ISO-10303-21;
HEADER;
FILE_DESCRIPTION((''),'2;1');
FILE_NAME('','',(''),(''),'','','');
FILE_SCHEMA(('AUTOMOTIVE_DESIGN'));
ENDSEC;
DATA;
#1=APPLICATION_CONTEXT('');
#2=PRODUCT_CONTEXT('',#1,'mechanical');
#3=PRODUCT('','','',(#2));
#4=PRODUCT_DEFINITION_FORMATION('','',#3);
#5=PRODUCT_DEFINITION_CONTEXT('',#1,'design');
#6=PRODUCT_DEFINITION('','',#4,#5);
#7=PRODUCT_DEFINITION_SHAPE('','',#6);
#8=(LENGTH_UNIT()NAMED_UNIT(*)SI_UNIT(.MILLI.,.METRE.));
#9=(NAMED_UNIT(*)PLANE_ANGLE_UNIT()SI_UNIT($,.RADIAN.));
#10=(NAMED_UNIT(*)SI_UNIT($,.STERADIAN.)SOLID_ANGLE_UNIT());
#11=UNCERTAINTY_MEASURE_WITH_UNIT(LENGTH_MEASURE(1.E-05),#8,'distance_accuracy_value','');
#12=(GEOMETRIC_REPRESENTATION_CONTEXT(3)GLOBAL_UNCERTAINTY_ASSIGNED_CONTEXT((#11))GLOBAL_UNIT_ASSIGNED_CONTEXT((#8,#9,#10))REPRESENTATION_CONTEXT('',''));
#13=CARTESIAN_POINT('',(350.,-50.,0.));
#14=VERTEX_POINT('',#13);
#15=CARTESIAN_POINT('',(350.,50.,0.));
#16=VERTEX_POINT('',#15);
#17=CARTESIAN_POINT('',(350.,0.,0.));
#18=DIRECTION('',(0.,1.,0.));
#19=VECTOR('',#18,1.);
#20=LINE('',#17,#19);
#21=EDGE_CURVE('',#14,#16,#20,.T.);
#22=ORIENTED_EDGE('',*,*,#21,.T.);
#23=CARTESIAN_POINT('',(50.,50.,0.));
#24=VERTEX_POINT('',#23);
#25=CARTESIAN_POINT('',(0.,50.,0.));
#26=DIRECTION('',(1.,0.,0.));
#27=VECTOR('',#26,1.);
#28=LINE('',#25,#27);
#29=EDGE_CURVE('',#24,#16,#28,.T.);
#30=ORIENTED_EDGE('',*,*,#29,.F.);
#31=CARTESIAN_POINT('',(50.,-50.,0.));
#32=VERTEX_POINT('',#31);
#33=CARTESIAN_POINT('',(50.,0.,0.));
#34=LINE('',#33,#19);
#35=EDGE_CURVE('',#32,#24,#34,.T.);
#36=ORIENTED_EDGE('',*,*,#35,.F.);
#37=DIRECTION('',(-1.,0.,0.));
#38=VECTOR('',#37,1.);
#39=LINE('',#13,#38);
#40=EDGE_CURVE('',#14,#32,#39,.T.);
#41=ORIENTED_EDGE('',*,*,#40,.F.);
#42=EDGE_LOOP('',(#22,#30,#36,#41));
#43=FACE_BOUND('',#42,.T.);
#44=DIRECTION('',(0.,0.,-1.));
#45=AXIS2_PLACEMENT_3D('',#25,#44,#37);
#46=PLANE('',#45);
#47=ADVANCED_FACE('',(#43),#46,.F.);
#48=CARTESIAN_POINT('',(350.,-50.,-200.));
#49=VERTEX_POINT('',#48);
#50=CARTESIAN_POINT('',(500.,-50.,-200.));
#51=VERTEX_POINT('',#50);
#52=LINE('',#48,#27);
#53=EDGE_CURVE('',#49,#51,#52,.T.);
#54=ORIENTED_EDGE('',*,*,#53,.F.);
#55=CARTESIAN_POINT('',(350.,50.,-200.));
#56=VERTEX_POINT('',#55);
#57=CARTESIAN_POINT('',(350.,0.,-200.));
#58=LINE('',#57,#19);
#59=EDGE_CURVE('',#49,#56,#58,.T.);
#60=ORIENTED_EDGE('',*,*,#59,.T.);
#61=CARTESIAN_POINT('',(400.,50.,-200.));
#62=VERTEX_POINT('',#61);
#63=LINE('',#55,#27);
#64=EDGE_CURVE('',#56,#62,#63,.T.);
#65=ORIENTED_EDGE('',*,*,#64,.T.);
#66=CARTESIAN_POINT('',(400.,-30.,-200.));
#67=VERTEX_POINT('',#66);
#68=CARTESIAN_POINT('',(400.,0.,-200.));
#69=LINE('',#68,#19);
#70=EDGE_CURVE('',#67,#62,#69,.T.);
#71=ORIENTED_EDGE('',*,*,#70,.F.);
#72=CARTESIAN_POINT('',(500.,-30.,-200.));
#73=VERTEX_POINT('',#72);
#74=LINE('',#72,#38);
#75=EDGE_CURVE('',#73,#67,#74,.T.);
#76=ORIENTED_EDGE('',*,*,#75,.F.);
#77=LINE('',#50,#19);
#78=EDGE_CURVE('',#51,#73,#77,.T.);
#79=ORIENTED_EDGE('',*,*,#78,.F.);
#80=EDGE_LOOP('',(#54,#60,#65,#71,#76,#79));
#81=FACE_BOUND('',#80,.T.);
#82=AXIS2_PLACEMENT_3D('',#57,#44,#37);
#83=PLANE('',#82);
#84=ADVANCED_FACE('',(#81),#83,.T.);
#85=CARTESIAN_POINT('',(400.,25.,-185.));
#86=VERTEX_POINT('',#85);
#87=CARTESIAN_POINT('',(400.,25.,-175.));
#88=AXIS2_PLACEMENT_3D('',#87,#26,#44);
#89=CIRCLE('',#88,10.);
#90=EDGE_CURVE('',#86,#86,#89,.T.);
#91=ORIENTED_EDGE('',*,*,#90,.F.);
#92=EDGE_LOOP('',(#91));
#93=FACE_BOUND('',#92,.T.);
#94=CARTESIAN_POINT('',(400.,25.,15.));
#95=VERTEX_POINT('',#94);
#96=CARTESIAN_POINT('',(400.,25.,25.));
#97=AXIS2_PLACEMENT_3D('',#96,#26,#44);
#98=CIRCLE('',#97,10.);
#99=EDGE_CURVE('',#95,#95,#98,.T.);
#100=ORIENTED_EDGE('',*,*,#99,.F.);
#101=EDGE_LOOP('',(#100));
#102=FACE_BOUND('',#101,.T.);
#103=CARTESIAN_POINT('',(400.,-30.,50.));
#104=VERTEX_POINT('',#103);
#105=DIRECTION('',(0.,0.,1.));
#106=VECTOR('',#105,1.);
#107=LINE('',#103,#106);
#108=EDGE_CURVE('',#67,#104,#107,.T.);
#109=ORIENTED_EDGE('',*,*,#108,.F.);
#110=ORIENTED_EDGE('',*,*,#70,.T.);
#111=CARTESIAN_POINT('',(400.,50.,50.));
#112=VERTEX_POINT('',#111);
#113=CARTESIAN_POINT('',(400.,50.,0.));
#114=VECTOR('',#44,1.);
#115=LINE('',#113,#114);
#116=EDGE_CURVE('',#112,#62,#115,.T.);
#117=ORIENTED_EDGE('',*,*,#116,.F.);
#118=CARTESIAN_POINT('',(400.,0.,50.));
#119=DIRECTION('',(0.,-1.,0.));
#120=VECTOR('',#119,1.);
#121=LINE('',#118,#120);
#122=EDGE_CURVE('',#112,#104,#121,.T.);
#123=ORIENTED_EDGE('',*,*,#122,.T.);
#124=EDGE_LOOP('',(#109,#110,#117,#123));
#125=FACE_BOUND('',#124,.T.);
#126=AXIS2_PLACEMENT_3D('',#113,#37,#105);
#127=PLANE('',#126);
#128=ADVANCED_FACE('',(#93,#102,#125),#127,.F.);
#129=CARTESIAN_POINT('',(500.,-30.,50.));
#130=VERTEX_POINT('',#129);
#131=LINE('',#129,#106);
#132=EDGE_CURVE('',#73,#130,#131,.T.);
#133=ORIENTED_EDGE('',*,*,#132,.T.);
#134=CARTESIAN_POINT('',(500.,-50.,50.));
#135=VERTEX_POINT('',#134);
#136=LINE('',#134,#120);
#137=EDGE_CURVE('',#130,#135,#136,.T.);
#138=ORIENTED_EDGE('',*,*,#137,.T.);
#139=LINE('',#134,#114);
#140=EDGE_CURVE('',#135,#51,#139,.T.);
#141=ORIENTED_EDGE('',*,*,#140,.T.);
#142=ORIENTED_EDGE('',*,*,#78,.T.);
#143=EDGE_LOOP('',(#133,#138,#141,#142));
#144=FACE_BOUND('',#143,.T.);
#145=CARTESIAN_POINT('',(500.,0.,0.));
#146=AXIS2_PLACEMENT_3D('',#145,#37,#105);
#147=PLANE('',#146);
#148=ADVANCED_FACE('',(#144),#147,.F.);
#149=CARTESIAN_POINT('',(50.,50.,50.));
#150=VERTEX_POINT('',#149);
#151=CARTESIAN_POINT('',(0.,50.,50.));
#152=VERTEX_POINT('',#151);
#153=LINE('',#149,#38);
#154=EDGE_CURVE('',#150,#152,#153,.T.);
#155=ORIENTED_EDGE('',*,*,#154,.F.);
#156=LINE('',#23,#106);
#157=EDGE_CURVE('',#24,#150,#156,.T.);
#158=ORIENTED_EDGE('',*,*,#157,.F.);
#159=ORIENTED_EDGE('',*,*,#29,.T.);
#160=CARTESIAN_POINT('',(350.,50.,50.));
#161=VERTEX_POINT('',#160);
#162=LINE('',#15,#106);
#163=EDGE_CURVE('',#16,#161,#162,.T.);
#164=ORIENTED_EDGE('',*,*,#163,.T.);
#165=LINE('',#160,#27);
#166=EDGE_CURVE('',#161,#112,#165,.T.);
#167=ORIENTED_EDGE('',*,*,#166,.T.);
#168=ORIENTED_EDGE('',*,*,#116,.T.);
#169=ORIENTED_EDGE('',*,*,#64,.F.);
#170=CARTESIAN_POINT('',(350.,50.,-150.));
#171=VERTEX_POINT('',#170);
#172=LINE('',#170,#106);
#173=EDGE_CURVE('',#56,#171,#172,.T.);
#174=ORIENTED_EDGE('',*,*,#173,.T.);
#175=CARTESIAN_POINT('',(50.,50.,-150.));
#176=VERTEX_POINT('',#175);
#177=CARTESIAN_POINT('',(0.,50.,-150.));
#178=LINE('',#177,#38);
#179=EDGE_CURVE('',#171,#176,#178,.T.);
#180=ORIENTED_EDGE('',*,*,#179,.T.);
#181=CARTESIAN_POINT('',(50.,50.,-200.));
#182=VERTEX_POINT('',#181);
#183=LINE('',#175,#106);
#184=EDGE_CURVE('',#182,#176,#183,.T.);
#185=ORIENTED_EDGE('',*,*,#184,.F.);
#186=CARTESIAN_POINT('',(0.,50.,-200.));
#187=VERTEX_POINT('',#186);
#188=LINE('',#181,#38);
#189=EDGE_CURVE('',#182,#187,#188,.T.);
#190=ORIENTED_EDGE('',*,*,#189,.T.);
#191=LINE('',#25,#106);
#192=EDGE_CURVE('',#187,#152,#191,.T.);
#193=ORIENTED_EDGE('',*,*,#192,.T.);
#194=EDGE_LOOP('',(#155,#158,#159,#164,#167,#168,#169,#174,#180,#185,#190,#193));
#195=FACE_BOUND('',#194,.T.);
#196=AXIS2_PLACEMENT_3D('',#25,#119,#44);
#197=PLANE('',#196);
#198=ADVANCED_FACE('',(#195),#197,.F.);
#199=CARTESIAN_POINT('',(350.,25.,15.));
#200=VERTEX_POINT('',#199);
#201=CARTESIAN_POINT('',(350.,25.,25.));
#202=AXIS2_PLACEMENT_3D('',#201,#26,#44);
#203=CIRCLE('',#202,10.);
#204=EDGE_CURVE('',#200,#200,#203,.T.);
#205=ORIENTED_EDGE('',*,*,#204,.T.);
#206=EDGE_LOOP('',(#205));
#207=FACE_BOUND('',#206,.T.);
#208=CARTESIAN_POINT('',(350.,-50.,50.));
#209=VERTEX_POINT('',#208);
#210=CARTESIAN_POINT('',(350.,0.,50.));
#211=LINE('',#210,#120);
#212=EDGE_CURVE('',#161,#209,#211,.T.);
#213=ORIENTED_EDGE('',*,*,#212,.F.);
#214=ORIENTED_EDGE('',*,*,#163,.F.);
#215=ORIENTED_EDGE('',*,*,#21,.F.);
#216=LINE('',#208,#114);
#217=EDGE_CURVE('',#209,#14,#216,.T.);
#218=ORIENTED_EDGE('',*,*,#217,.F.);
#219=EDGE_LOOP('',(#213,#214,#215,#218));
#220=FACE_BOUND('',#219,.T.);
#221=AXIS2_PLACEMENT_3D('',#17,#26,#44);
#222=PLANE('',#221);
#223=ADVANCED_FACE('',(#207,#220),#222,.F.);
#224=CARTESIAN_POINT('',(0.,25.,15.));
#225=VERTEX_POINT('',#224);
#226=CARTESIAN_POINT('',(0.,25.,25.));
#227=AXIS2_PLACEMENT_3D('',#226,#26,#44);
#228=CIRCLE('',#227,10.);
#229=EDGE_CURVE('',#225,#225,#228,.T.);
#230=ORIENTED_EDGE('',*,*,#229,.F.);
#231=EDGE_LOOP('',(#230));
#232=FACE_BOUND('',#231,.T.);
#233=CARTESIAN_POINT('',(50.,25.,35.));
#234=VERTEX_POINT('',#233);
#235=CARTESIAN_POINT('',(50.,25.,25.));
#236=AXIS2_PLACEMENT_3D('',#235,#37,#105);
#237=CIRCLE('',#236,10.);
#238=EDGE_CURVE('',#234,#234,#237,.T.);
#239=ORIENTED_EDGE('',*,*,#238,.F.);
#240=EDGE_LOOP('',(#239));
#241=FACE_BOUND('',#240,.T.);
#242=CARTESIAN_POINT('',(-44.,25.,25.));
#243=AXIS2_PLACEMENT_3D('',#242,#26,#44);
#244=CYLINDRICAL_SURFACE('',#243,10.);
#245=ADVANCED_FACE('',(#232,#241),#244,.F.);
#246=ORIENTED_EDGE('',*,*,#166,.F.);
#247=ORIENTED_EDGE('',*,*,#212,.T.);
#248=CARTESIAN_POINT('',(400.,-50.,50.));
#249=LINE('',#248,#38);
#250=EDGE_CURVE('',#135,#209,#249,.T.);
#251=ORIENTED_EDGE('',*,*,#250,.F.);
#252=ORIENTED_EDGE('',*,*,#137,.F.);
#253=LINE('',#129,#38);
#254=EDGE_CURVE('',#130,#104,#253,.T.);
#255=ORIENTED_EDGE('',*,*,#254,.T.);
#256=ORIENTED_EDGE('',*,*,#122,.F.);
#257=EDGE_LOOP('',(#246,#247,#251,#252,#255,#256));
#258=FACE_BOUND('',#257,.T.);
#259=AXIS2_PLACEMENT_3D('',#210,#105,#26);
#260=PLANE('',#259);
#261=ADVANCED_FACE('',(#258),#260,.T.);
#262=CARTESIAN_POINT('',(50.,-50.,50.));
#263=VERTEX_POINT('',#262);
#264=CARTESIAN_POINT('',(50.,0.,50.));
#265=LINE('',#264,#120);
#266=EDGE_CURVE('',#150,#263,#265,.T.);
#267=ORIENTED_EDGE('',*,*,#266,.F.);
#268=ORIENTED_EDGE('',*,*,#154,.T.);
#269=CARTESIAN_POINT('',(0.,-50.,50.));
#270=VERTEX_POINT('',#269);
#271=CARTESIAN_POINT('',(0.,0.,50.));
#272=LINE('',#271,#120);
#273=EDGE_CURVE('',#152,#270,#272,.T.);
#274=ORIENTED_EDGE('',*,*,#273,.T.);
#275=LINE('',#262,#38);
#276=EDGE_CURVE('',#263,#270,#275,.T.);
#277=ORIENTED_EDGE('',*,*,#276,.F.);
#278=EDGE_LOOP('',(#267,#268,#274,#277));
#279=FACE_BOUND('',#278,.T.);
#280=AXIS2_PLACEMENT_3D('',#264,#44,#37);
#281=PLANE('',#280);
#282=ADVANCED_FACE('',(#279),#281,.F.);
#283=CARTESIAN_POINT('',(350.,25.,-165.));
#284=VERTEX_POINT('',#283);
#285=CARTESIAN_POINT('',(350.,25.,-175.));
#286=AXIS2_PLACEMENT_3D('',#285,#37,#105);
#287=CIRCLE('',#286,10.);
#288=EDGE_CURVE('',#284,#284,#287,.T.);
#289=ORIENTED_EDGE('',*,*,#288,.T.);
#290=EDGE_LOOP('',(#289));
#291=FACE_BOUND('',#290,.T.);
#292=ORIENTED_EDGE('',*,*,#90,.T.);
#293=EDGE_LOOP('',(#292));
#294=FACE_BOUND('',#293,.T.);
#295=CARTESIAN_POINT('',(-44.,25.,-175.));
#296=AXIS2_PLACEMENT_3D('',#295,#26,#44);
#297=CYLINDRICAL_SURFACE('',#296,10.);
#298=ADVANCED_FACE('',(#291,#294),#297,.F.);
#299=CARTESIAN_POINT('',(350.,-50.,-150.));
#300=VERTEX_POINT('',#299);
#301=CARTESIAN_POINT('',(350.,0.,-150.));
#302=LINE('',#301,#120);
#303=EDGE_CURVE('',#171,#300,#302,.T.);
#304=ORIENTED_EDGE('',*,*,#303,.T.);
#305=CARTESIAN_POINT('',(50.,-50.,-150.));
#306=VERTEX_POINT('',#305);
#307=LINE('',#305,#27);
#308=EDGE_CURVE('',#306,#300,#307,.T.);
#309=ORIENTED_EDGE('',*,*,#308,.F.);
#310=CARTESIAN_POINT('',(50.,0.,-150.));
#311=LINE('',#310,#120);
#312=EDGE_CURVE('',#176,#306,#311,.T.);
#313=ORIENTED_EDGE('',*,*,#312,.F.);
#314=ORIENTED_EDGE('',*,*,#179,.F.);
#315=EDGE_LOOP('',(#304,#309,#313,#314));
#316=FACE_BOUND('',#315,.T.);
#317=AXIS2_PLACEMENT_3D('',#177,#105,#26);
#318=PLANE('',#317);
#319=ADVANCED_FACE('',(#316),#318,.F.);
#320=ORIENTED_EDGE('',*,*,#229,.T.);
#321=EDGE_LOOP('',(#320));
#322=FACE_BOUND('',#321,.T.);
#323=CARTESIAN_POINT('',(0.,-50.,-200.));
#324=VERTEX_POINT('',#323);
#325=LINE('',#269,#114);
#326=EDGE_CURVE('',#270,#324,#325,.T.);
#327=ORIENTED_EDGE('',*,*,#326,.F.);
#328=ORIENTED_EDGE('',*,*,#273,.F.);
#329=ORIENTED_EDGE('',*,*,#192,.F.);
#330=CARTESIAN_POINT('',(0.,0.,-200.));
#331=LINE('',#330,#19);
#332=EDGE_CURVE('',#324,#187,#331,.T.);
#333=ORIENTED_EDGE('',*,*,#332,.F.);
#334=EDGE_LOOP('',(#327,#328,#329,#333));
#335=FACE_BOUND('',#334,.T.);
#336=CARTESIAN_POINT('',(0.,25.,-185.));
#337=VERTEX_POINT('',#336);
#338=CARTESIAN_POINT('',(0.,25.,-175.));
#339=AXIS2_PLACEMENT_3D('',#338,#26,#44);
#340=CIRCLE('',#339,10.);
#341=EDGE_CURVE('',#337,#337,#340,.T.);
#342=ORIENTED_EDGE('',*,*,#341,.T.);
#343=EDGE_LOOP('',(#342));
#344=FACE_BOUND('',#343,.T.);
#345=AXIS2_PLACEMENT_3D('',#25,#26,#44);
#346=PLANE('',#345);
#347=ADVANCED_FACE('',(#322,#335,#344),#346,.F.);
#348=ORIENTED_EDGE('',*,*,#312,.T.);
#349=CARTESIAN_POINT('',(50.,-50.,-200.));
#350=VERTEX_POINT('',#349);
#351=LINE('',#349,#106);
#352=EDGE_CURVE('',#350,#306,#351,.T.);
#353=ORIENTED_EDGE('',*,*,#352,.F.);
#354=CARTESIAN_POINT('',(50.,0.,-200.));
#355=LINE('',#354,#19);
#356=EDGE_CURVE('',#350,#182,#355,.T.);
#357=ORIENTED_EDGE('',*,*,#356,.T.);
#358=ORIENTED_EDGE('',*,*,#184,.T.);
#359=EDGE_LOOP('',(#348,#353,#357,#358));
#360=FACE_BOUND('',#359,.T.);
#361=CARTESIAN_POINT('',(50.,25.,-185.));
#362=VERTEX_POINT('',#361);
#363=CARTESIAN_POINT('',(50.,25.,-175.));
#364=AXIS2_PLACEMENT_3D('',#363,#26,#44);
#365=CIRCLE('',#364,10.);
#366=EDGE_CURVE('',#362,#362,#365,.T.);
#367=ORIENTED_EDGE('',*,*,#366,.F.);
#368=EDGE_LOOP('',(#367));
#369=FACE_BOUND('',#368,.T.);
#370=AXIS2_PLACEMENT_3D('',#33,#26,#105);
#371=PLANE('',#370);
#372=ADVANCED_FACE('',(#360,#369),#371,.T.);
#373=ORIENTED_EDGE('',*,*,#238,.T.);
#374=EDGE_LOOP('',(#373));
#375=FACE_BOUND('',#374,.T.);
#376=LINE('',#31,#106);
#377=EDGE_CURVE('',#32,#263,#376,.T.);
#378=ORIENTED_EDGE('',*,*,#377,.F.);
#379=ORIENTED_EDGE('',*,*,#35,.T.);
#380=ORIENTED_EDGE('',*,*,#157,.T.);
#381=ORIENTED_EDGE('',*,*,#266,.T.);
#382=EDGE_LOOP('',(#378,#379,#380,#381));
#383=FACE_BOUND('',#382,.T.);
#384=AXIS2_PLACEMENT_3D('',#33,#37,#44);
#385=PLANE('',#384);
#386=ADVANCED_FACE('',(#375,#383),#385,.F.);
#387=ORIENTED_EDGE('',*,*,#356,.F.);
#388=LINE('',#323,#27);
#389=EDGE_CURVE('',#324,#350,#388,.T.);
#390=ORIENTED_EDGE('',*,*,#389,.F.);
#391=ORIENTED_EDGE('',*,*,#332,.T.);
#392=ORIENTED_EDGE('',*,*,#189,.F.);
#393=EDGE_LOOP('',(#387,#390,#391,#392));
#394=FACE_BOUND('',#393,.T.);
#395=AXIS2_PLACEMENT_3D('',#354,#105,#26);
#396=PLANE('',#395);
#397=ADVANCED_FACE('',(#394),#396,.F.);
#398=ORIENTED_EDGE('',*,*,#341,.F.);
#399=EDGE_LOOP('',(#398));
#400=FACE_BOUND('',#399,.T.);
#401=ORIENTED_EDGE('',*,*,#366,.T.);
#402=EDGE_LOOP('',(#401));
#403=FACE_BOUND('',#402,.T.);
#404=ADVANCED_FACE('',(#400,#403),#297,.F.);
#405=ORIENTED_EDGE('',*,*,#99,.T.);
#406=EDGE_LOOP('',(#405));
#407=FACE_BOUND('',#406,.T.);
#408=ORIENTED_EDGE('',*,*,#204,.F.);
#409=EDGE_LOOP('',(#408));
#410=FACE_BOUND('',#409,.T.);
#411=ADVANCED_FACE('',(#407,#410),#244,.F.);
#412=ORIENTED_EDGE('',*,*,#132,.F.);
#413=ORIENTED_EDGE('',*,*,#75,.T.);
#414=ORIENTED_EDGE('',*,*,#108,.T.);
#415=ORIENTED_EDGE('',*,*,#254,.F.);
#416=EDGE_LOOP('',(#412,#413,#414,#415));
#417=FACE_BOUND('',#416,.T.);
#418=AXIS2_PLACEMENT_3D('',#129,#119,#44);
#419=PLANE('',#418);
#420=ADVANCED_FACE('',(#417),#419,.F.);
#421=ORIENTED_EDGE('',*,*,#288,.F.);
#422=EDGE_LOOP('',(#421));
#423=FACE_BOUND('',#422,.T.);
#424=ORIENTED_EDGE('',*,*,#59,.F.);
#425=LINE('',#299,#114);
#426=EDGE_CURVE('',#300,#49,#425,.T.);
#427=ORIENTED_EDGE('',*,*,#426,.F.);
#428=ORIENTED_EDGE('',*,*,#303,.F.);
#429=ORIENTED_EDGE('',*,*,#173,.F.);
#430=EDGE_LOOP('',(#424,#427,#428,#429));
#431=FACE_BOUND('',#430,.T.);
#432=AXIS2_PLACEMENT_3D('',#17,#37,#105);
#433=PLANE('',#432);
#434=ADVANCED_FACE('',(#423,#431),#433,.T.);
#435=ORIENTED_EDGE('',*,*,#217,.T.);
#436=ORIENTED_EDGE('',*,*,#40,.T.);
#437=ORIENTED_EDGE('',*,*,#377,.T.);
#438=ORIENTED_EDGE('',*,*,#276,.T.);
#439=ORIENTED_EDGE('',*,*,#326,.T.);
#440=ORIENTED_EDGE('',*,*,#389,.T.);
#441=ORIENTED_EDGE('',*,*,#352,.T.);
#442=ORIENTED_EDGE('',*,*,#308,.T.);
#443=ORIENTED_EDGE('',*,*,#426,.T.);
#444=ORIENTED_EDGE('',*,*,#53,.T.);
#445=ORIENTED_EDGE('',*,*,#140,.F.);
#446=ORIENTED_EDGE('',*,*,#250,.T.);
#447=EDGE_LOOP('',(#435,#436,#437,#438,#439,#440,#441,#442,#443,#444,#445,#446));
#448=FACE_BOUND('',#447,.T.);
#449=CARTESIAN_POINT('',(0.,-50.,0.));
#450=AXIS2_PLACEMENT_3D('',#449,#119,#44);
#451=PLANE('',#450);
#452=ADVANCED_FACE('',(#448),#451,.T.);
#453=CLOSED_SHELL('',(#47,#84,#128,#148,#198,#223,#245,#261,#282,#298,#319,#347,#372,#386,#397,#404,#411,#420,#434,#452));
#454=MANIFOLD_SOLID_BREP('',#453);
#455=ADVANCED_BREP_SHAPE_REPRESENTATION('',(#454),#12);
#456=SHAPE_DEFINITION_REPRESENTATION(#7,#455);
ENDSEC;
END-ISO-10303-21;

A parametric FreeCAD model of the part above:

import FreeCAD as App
import Part
import Sketcher

V = App.Vector
Q = App.Units.Quantity


def add_polygon(sketch, points):
    """Adds a closed chain of lines whose ends are joined by coincident constraints."""
    first, n = sketch.GeometryCount, len(points)
    for a, b in zip(points, points[1:] + points[:1]):
        sketch.addGeometry(Part.LineSegment(App.Vector(*a, 0), App.Vector(*b, 0)), False)
    for i in range(n):
        sketch.addConstraint(Sketcher.Constraint("Coincident", first + i, 2, first + (i + 1) % n, 1))

doc = App.newDocument("Part")
body = doc.addObject("PartDesign::Body", "Body")

# Sketch on XZ plane
sketch1 = body.newObject("Sketcher::SketchObject", "Sketch")
sketch1.AttachmentSupport = (doc.getObject("XZ_Plane"), [""])
sketch1.MapMode = "FlatFace"
add_polygon(sketch1, [(0, -150), (0, 0), (400, 0), (400, -150)])  # lines 0-3
sketch1.addConstraint([
    Sketcher.Constraint("Vertical", 0),
    Sketcher.Constraint("Horizontal", 1),
    Sketcher.Constraint("Vertical", 2),
    Sketcher.Constraint("Horizontal", 3),
    Sketcher.Constraint("Coincident", 0, 2, -1, 1),
    Sketcher.Constraint("DistanceX", 1, 1, 1, 2, Q("400 mm")),
    Sketcher.Constraint("DistanceY", 0, 1, 0, 2, Q("150 mm")),
])
pad1 = body.newObject("PartDesign::Pad", "Pad")
pad1.Profile = sketch1
pad1.Length = 50
pad1.Reversed = True

# Sketch on YZ plane
sketch2 = body.newObject("Sketcher::SketchObject", "Sketch001")
sketch2.AttachmentSupport = (doc.getObject("YZ_Plane"), [""])
sketch2.MapMode = "FlatFace"
sketch2.AttachmentOffset = App.Placement(V(0, 0, 400), App.Rotation())
add_polygon(sketch2, [(50, 50), (0, 50), (0, 0), (50, 0)])  # lines 0-3
add_polygon(sketch2, [(50, -150), (0, -150), (0, -200), (50, -200)])  # lines 4-7
sketch2.addConstraint([
    Sketcher.Constraint("Horizontal", 0),
    Sketcher.Constraint("Vertical", 1),
    Sketcher.Constraint("Horizontal", 2),
    Sketcher.Constraint("Vertical", 3),
    Sketcher.Constraint("Horizontal", 4),
    Sketcher.Constraint("Vertical", 5),
    Sketcher.Constraint("Horizontal", 6),
    Sketcher.Constraint("Vertical", 7),
    Sketcher.Constraint("Coincident", 1, 2, -1, 1),
    Sketcher.Constraint("PointOnObject", 4, 2, -2),
    Sketcher.Constraint("Vertical", 3, 2, 6, 2),
    Sketcher.Constraint("Equal", 6, 1),
    Sketcher.Constraint("Equal", 3, 5),
    Sketcher.Constraint("DistanceX", 0, 2, 0, 1, Q("50 mm")),
    Sketcher.Constraint("DistanceY", 4, 2, -1, 1, Q("150 mm")),
])
pad2 = body.newObject("PartDesign::Pad", "Pad001")
pad2.Profile = sketch2
pad2.Length = 50
pad2.Reversed = True
doc.recompute()

datumplane = body.newObject("PartDesign::Plane", "DatumPlane")
datumplane.AttachmentSupport = (doc.getObject("YZ_Plane"), [""])
datumplane.MapMode = "FlatFace"
datumplane.AttachmentOffset = App.Placement(V(0, 0, 200), App.Rotation())
mirrored = body.newObject("PartDesign::Mirrored", "Mirrored")
mirrored.Originals = [pad2]
mirrored.MirrorPlane = (datumplane, [""])
body.Tip = mirrored

# Sketch on YZ plane
sketch3 = body.newObject("Sketcher::SketchObject", "Sketch002")
sketch3.AttachmentSupport = (doc.getObject("YZ_Plane"), [""])
sketch3.MapMode = "FlatFace"
sketch3.AttachmentOffset = App.Placement(V(0, 0, 400), App.Rotation())
sketch3.addGeometry([
    Part.Circle(V(25, 25, 0), V(0, 0, 1), 10),
    Part.Circle(V(25, -175, 0), V(0, 0, 1), 10),
], False)
sketch3.addConstraint([
    Sketcher.Constraint("Equal", 0, 1),
    Sketcher.Constraint("Vertical", 0, 3, 1, 3),
    Sketcher.Constraint("Diameter", 0, Q("20 mm")),
    Sketcher.Constraint("DistanceX", -1, 1, 0, 3, Q("25 mm")),
    Sketcher.Constraint("DistanceY", -1, 1, 0, 3, Q("25 mm")),
    Sketcher.Constraint("DistanceY", 1, 3, -1, 1, Q("175 mm")),
])
pocket1 = body.newObject("PartDesign::Pocket", "Pocket")
pocket1.Profile = sketch3
pocket1.Length = 444

# Sketch on XZ plane
sketch4 = body.newObject("Sketcher::SketchObject", "Sketch003")
sketch4.AttachmentSupport = (doc.getObject("XZ_Plane"), [""])
sketch4.MapMode = "FlatFace"
add_polygon(sketch4, [(0, 50), (0, -200), (50, -200), (50, -150), (350, -150), (350, -200), (400, -200), (400, 50), (350, 50), (350, 0), (50, 0), (50, 50)])  # lines 0-11
sketch4.addConstraint([
    Sketcher.Constraint("Vertical", 0),
    Sketcher.Constraint("Horizontal", 1),
    Sketcher.Constraint("Vertical", 2),
    Sketcher.Constraint("Horizontal", 3),
    Sketcher.Constraint("Vertical", 4),
    Sketcher.Constraint("Horizontal", 5),
    Sketcher.Constraint("Vertical", 6),
    Sketcher.Constraint("Horizontal", 7),
    Sketcher.Constraint("Vertical", 8),
    Sketcher.Constraint("Horizontal", 9),
    Sketcher.Constraint("Vertical", 10),
    Sketcher.Constraint("Horizontal", 11),
    Sketcher.Constraint("PointOnObject", 0, 2, -2),
    Sketcher.Constraint("PointOnObject", 8, 2, -1),
    Sketcher.Constraint("Horizontal", 1, 2, 4, 2),
    Sketcher.Constraint("Horizontal", 7, 2, 10, 2),
    Sketcher.Constraint("Vertical", 4, 2, 7, 2),
    Sketcher.Constraint("Vertical", 2, 2, 9, 2),
    Sketcher.Constraint("Equal", 1, 5),
    Sketcher.Constraint("Equal", 11, 2),
    Sketcher.Constraint("Equal", 4, 8),
    Sketcher.Constraint("DistanceX", 1, 1, 1, 2, Q("50 mm")),
    Sketcher.Constraint("DistanceX", 3, 1, 3, 2, Q("300 mm")),
    Sketcher.Constraint("DistanceY", 0, 2, 0, 1, Q("250 mm")),
])
pad3 = body.newObject("PartDesign::Pad", "Pad002")
pad3.Profile = sketch4
pad3.Length = 50

# Sketch on YZ plane
sketch5 = body.newObject("Sketcher::SketchObject", "Sketch004")
sketch5.AttachmentSupport = (doc.getObject("YZ_Plane"), [""])
sketch5.MapMode = "FlatFace"
sketch5.AttachmentOffset = App.Placement(V(0, 0, 400), App.Rotation())
add_polygon(sketch5, [(-30, 50), (-50, 50), (-50, -200), (-30, -200)])  # lines 0-3
sketch5.addConstraint([
    Sketcher.Constraint("Horizontal", 0),
    Sketcher.Constraint("Vertical", 1),
    Sketcher.Constraint("Horizontal", 2),
    Sketcher.Constraint("Vertical", 3),
    Sketcher.Constraint("DistanceX", 0, 2, 0, 1, Q("20 mm")),
    Sketcher.Constraint("DistanceY", 1, 2, 1, 1, Q("250 mm")),
    Sketcher.Constraint("DistanceX", 0, 2, -1, 1, Q("50 mm")),
    Sketcher.Constraint("DistanceY", -1, 1, 0, 2, Q("50 mm")),
])
pad4 = body.newObject("PartDesign::Pad", "Pad003")
pad4.Profile = sketch5
pad4.Length = 100

doc.recompute()
